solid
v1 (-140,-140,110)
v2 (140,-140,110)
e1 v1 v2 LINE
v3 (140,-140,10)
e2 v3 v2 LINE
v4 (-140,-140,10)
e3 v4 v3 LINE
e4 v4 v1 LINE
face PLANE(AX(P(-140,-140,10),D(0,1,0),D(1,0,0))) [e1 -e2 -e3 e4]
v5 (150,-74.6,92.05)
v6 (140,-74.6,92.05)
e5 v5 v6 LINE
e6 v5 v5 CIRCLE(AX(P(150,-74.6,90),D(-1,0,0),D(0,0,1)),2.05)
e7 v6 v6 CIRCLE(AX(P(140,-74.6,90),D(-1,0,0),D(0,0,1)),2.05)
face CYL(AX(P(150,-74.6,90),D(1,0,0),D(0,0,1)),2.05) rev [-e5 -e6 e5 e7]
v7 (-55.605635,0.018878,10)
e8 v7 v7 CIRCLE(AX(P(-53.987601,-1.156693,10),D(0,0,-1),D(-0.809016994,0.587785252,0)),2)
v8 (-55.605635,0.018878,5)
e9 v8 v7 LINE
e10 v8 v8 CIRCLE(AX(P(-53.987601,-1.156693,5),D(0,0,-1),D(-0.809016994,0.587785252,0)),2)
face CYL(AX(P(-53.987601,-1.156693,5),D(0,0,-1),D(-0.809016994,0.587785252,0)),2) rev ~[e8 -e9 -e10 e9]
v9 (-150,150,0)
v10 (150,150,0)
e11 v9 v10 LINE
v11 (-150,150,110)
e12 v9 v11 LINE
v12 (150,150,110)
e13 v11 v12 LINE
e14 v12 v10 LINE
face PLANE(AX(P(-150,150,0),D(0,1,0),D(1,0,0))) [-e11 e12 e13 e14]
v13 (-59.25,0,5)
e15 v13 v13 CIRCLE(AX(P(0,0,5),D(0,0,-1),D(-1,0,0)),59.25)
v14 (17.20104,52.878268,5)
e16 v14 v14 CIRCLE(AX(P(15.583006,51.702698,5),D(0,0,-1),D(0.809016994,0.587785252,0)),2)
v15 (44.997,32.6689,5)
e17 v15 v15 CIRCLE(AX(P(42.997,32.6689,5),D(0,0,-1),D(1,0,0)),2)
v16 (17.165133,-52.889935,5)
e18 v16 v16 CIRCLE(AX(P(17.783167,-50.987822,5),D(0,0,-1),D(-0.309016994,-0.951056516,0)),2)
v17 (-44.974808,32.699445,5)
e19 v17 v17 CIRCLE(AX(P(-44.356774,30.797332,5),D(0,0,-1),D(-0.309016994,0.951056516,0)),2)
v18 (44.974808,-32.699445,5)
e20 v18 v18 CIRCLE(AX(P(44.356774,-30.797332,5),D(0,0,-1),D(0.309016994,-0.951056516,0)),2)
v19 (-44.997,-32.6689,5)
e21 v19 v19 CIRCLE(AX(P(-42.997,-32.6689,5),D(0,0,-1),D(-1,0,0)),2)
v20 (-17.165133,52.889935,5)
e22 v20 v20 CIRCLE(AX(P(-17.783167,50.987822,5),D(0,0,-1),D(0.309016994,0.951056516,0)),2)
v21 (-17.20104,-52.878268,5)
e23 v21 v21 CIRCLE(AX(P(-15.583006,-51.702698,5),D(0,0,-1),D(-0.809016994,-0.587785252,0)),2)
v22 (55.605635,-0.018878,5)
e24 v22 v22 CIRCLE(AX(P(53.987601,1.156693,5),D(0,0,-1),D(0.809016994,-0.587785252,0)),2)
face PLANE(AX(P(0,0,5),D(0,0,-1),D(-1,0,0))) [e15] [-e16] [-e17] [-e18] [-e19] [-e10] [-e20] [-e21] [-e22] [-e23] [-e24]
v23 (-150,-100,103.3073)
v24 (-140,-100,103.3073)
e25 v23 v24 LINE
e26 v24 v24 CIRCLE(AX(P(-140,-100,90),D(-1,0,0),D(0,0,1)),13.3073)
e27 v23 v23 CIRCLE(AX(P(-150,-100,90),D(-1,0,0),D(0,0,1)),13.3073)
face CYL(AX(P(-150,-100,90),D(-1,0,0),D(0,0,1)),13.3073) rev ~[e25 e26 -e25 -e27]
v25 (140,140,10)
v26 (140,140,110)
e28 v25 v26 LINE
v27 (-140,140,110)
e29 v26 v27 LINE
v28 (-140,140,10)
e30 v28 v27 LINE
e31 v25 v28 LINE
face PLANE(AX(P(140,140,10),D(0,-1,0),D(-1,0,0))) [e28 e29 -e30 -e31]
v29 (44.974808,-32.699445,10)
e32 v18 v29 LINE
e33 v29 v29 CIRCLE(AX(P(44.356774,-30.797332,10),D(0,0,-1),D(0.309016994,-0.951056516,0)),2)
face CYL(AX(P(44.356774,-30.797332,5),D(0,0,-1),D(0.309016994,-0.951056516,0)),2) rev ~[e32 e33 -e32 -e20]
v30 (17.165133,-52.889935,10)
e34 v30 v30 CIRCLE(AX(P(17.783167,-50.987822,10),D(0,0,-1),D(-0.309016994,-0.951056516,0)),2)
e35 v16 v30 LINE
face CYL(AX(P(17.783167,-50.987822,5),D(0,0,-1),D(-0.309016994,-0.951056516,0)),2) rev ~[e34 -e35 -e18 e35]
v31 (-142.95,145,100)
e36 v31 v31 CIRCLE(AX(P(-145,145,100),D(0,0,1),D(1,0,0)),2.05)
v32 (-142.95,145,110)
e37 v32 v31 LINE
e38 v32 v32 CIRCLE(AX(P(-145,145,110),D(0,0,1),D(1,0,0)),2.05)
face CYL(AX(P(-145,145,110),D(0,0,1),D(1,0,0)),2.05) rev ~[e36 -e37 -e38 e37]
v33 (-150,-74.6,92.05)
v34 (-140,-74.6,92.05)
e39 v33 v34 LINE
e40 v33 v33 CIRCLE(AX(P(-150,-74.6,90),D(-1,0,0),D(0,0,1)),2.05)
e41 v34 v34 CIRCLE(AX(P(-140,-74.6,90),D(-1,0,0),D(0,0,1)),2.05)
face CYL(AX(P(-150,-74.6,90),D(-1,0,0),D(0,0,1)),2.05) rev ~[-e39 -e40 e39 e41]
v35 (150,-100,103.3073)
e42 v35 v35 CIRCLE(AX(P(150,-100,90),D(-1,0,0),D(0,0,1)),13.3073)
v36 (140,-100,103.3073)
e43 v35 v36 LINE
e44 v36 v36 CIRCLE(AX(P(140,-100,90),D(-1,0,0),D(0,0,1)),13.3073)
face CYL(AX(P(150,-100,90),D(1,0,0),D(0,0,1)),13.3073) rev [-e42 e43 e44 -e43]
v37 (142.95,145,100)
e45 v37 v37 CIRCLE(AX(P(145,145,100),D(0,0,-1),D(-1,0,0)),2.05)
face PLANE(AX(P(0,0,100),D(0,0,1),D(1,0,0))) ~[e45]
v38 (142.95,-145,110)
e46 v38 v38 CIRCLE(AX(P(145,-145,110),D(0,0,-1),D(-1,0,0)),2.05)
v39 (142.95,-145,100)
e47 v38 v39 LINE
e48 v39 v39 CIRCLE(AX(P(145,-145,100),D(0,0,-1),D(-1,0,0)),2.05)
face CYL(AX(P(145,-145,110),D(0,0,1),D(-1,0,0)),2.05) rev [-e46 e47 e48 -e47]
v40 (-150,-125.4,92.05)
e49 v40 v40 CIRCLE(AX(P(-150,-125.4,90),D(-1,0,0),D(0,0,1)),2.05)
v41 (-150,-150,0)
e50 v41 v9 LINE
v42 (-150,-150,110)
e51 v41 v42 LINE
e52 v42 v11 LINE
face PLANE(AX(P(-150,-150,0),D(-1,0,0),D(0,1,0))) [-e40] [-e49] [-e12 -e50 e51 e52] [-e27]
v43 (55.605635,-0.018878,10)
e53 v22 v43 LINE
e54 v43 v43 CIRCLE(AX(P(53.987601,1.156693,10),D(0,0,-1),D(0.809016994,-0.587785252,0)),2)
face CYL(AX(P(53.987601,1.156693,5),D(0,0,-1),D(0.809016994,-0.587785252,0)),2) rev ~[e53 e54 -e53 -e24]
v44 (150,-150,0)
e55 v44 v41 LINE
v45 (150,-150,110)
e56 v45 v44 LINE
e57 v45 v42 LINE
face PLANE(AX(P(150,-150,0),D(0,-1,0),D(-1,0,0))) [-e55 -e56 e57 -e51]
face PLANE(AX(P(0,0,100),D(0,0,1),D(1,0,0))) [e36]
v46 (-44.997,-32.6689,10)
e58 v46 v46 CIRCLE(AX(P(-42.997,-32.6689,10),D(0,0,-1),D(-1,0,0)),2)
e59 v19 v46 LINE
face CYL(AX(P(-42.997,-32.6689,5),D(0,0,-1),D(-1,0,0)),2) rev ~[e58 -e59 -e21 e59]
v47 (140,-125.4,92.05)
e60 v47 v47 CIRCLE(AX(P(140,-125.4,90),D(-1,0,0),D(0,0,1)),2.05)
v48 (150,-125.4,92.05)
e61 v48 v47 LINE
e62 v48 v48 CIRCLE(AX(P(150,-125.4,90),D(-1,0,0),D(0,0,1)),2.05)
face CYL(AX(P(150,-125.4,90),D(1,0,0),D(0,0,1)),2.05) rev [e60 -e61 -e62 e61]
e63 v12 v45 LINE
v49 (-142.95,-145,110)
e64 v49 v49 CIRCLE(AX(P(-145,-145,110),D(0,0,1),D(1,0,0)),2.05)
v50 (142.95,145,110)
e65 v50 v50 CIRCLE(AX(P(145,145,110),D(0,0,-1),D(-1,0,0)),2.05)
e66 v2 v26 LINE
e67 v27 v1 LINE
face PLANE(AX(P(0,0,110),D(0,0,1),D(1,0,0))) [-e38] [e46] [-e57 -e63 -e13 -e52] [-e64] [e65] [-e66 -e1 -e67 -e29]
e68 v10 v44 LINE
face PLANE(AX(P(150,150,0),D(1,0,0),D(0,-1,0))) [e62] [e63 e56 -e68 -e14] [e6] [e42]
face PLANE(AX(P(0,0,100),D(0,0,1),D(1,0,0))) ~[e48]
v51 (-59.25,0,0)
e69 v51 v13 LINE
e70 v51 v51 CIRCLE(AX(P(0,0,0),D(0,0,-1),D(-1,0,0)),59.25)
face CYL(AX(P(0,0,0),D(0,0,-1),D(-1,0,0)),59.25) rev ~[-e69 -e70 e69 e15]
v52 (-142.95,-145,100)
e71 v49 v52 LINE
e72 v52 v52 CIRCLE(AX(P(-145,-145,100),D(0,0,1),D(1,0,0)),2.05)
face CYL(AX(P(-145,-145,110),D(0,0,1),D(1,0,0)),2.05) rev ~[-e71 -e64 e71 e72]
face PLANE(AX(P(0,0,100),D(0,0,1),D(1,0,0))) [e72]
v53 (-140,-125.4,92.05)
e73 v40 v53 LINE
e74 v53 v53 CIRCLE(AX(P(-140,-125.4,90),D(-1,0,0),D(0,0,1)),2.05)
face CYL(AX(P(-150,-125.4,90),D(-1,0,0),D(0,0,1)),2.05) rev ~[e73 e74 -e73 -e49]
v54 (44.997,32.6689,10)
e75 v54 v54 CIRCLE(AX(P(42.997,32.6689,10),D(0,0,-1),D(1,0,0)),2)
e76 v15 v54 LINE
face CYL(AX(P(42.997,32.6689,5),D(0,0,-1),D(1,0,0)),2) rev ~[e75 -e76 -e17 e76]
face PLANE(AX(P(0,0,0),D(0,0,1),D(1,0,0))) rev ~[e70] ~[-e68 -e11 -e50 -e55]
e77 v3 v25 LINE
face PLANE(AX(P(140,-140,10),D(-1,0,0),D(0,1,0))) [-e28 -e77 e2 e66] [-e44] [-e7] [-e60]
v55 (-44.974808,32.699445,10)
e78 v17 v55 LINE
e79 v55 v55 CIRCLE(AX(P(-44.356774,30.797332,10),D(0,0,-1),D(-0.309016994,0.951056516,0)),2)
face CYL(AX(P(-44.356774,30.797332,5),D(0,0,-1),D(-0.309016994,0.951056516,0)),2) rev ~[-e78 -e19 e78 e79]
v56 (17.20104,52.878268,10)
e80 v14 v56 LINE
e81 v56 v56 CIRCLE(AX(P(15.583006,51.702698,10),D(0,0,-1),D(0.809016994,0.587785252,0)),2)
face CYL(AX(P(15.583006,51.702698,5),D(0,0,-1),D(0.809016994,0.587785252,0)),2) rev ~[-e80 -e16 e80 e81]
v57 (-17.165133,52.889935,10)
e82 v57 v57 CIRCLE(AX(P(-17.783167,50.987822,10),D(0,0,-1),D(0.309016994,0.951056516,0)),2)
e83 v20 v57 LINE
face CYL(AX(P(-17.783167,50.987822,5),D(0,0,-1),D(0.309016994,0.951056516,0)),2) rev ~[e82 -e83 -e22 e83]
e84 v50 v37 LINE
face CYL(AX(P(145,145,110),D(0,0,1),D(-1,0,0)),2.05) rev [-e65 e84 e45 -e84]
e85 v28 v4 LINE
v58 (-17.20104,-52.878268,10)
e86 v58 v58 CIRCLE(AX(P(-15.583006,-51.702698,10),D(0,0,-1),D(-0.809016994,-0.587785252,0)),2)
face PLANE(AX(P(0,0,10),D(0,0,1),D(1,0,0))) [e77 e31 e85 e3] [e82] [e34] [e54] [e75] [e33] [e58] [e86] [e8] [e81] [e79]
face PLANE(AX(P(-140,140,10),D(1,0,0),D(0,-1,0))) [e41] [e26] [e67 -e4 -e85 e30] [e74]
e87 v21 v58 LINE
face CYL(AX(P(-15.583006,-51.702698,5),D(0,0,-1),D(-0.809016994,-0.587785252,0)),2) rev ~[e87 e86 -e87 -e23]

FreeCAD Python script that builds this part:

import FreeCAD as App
import Part
import Sketcher
from FreeCAD import Vector


def add_polygon(sketch, points):
    """Adds a closed chain of lines whose ends are joined by coincident constraints."""
    first, n = sketch.GeometryCount, len(points)
    for a, b in zip(points, points[1:] + points[:1]):
        sketch.addGeometry(Part.LineSegment(App.Vector(*a, 0), App.Vector(*b, 0)), False)
    for i in range(n):
        sketch.addConstraint(Sketcher.Constraint("Coincident", first + i, 2, first + (i + 1) % n, 1))

doc = App.newDocument("Part")
body = doc.addObject("PartDesign::Body", "Body")

sketch1 = body.newObject("Sketcher::SketchObject", "Sketch")
sketch1.AttachmentSupport = (doc.getObject("XY_Plane"), [""])
sketch1.MapMode = "FlatFace"
add_polygon(sketch1, [(150, 150), (-150, 150), (-150, -150), (150, -150)])
sketch1.addConstraint([
    Sketcher.Constraint("Horizontal", 0),
    Sketcher.Constraint("Vertical", 1),
    Sketcher.Constraint("Horizontal", 2),
    Sketcher.Constraint("Vertical", 3),
    Sketcher.Constraint("Symmetric", 0, 2, 2, 2, -1, 1),
    Sketcher.Constraint("Equal", 2, 1),
    Sketcher.Constraint("DistanceX", 0, 2, 0, 1, 300.0),
])
pad1 = body.newObject("PartDesign::Pad", "Pad")
pad1.Profile = sketch1
pad1.Length = 10

sketch2 = body.newObject("Sketcher::SketchObject", "Sketch001")
sketch2.AttachmentSupport = (doc.getObject("XY_Plane"), [""])
sketch2.MapMode = "FlatFace"
sketch2.AttachmentOffset = App.Placement(Vector(0, 0, 10), App.Rotation())
add_polygon(sketch2, [(150, 150), (-150, 150), (-150, -150), (150, -150)])
add_polygon(sketch2, [(-140, 140), (140, 140), (140, -140), (-140, -140)])
sketch2.addConstraint([
    Sketcher.Constraint("Horizontal", 0),
    Sketcher.Constraint("Vertical", 1),
    Sketcher.Constraint("Horizontal", 2),
    Sketcher.Constraint("Vertical", 3),
    Sketcher.Constraint("Horizontal", 4),
    Sketcher.Constraint("Vertical", 5),
    Sketcher.Constraint("Horizontal", 6),
    Sketcher.Constraint("Vertical", 7),
    Sketcher.Constraint("Symmetric", 0, 2, 2, 2, -1, 1),
    Sketcher.Constraint("Symmetric", 4, 2, 6, 2, -1, 1),
    Sketcher.Constraint("Equal", 2, 1),
    Sketcher.Constraint("Equal", 6, 5),
    Sketcher.Constraint("DistanceX", 4, 2, 3, 2, 10.0),
    Sketcher.Constraint("DistanceX", 0, 2, 0, 1, 300.0),
])
pad2 = body.newObject("PartDesign::Pad", "Pad001")
pad2.Profile = sketch2
pad2.Length = 100

sketch3 = body.newObject("Sketcher::SketchObject", "Sketch002")
sketch3.AttachmentSupport = (doc.getObject("XY_Plane"), [""])
sketch3.MapMode = "FlatFace"
sketch3.addGeometry(Part.Circle(Vector(0, 0, 0), Vector(0, 0, 1), 59), False)
sketch3.addConstraint([
    Sketcher.Constraint("Coincident", 0, 3, -1, 1),
    Sketcher.Constraint("Diameter", 0, 118.5),
])
pocket1 = body.newObject("PartDesign::Pocket", "Pocket")
pocket1.Profile = sketch3
pocket1.Length = 5
pocket1.Reversed = True

sketch4 = body.newObject("Sketcher::SketchObject", "Sketch003")
sketch4.AttachmentSupport = (doc.getObject("XY_Plane"), [""])
sketch4.MapMode = "FlatFace"
sketch4.AttachmentOffset = App.Placement(Vector(0, 0, 5), App.Rotation())
sketch4.addGeometry(Part.Circle(Vector(-43, -32.7, 0), Vector(0, 0, 1), 2), False)
sketch4.addConstraint([
    Sketcher.Constraint("Diameter", 0, 4.0),
    Sketcher.Constraint("DistanceX", 0, 3, -1, 1, 42.997),
    Sketcher.Constraint("DistanceY", 0, 3, -1, 1, 32.669),
])
pocket2 = body.newObject("PartDesign::Pocket", "Pocket001")
pocket2.Profile = sketch4
pocket2.Length = 5
pocket2.Reversed = True
doc.recompute()

polarpattern = body.newObject("PartDesign::PolarPattern", "PolarPattern")
polarpattern.Originals = [pocket2]
polarpattern.Axis = (doc.getObject("Z_Axis"), [""])
polarpattern.Angle = 360
polarpattern.Occurrences = 10
body.Tip = polarpattern

sketch5 = body.newObject("Sketcher::SketchObject", "Sketch004")
sketch5.AttachmentSupport = (doc.getObject("YZ_Plane"), [""])
sketch5.MapMode = "FlatFace"
sketch5.AttachmentOffset = App.Placement(Vector(0, 0, -150), App.Rotation())
sketch5.addGeometry(Part.Circle(Vector(-100, 90, 0), Vector(0, 0, 1), 13), False)
sketch5.addConstraint([
    Sketcher.Constraint("DistanceX", 0, 3, -1, 1, 100.0),
    Sketcher.Constraint("DistanceY", -1, 1, 0, 3, 90.0),
    Sketcher.Constraint("Diameter", 0, 26.6146),
])
pocket3 = body.newObject("PartDesign::Pocket", "Pocket002")
pocket3.Profile = sketch5
pocket3.Length = 10
pocket3.Reversed = True

sketch6 = body.newObject("Sketcher::SketchObject", "Sketch005")
sketch6.AttachmentSupport = (doc.getObject("YZ_Plane"), [""])
sketch6.MapMode = "FlatFace"
sketch6.AttachmentOffset = App.Placement(Vector(0, 0, -150), App.Rotation())
sketch6.addGeometry([
    Part.Circle(Vector(-74.6, 90, 0), Vector(0, 0, 1), 2),
    Part.Circle(Vector(-125.4, 90, 0), Vector(0, 0, 1), 2),
], False)
sketch6.addConstraint([
    Sketcher.Constraint("Equal", 0, 1),
    Sketcher.Constraint("Horizontal", 0, 3, 1, 3),
    Sketcher.Constraint("Diameter", 0, 4.1),
    Sketcher.Constraint("DistanceX", 1, 3, 0, 3, 50.8),
    Sketcher.Constraint("DistanceY", -1, 1, 0, 3, 90.0),
    Sketcher.Constraint("DistanceX", 0, 3, -1, 1, 74.6),
])
pocket4 = body.newObject("PartDesign::Pocket", "Pocket003")
pocket4.Profile = sketch6
pocket4.Length = 10
pocket4.Reversed = True

sketch7 = body.newObject("Sketcher::SketchObject", "Sketch006")
sketch7.AttachmentSupport = (doc.getObject("XY_Plane"), [""])
sketch7.MapMode = "FlatFace"
sketch7.AttachmentOffset = App.Placement(Vector(0, 0, 110), App.Rotation())
sketch7.addGeometry([
    Part.Circle(Vector(-145, -145, 0), Vector(0, 0, 1), 2),
    Part.Circle(Vector(-145, 145, 0), Vector(0, 0, 1), 2),
], False)
sketch7.addConstraint([
    Sketcher.Constraint("Equal", 0, 1),
    Sketcher.Constraint("Symmetric", 0, 3, 1, 3, -1),
    Sketcher.Constraint("Diameter", 0, 4.1),
    Sketcher.Constraint("DistanceX", 0, 3, -1, 1, 145.0),
    Sketcher.Constraint("DistanceY", 0, 3, -1, 1, 145.0),
])
pocket5 = body.newObject("PartDesign::Pocket", "Pocket004")
pocket5.Profile = sketch7
pocket5.Length = 10
doc.recompute()

mirrored = body.newObject("PartDesign::Mirrored", "Mirrored")
mirrored.Originals = [pocket3, pocket4, pocket5]
mirrored.MirrorPlane = (doc.getObject("YZ_Plane"), [""])
body.Tip = mirrored

doc.recompute()
